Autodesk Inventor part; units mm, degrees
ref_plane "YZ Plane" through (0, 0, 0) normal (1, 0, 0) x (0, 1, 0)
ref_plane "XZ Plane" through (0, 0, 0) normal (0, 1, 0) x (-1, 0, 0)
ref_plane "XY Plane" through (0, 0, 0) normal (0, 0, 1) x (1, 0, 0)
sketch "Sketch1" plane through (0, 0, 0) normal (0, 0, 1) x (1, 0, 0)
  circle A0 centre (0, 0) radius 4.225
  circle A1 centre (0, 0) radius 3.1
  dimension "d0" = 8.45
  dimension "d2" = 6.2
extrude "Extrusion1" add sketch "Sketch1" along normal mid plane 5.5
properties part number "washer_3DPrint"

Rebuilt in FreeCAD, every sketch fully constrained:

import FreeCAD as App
import Part
import Sketcher

V = App.Vector

doc = App.newDocument("Part")
body = doc.addObject("PartDesign::Body", "Body")

sketch1 = doc.addObject("Sketcher::SketchObject", "Sketch")
body.addObject(sketch1)
sketch1.AttachmentSupport = (doc.XY_Plane, [""])
sketch1.MapMode = "FlatFace"
sketch1.addGeometry(Part.Circle(V(0, 0, 0), V(0, 0, 1), 4.2), False)
sketch1.addGeometry(Part.Circle(V(0, 0, 0), V(0, 0, 1), 3.1), False)
sketch1.addConstraint(Sketcher.Constraint("Coincident", 0, 3, -1, 1))
sketch1.addConstraint(Sketcher.Constraint("Coincident", 1, 3, -1, 1))
sketch1.addConstraint(Sketcher.Constraint("Diameter", 1, 6.2))
sketch1.addConstraint(Sketcher.Constraint("Diameter", 0, 8.45))
pad1 = doc.addObject("PartDesign::Pad", "Pad")
body.addObject(pad1)
pad1.Profile = sketch1
pad1.Length = 5.5
pad1.Midplane = True

doc.recompute()
